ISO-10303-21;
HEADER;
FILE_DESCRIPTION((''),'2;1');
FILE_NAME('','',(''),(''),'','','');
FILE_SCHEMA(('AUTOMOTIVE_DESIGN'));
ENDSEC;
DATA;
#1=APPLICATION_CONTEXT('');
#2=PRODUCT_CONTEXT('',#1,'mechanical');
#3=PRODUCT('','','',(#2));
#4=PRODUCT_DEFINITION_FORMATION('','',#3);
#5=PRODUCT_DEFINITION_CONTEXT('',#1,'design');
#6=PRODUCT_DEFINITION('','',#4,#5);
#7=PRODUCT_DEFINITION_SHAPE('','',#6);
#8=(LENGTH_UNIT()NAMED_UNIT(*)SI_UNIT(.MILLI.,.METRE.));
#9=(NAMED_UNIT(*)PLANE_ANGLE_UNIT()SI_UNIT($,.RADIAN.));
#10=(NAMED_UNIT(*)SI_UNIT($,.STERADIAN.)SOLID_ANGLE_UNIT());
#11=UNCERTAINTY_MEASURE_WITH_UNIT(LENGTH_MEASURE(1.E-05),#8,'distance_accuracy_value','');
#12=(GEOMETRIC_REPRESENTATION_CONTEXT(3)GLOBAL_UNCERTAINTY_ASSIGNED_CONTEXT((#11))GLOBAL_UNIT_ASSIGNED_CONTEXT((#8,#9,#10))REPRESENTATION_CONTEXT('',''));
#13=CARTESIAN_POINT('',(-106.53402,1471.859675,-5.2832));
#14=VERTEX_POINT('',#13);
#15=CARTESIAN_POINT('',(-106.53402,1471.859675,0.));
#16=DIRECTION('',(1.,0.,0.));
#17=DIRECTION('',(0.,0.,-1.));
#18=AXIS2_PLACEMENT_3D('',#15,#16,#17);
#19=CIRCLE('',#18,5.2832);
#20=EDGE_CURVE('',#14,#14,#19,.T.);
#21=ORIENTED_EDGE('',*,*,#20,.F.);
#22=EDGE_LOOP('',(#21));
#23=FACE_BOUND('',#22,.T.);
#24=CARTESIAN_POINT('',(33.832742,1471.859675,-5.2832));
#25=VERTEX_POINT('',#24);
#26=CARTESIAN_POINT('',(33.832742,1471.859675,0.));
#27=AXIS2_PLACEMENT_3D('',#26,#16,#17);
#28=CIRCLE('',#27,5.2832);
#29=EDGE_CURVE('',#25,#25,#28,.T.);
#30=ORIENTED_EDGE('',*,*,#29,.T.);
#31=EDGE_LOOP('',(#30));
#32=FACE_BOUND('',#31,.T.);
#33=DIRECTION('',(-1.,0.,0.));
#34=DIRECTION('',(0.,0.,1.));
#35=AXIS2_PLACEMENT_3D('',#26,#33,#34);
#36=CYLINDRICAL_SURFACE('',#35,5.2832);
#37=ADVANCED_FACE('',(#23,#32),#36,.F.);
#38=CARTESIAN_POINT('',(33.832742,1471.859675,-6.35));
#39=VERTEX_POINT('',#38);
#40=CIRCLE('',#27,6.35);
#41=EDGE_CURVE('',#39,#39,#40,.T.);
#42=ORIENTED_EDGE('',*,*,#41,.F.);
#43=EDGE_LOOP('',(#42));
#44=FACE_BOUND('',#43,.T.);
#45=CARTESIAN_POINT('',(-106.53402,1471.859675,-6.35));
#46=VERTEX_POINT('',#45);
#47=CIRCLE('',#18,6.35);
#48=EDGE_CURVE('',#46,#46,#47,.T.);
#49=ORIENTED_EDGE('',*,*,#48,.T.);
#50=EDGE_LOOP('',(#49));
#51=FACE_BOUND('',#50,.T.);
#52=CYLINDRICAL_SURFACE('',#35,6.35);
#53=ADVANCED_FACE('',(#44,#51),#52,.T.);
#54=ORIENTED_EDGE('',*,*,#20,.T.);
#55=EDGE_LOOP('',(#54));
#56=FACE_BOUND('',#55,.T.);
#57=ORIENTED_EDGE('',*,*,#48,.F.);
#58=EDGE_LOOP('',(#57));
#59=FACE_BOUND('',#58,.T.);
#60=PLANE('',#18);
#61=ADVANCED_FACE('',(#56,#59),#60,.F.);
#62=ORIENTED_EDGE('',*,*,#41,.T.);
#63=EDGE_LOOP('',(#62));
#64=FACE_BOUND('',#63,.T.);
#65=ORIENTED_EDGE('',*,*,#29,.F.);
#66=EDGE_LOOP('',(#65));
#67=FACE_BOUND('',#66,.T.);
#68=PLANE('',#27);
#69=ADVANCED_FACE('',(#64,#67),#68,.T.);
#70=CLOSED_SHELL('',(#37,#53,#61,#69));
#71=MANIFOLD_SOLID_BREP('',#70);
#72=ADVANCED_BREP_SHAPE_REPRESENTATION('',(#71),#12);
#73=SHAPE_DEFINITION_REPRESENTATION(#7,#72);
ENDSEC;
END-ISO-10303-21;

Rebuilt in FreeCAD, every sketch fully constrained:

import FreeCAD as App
import Part
import Sketcher

V = App.Vector
Q = App.Units.Quantity

doc = App.newDocument("Part")
body = doc.addObject("PartDesign::Body", "Body")

sketch1 = body.newObject("Sketcher::SketchObject", "Sketch")
sketch1.AttachmentSupport = (doc.getObject("YZ_Plane"), [""])
sketch1.MapMode = "FlatFace"
sketch1.AttachmentOffset = App.Placement(V(0, 0, -106.53402), App.Rotation())
sketch1.addGeometry([
    Part.Circle(V(1471.859675, 0, 0), V(0, 0, 1), 6.35),
    Part.Circle(V(1471.859675, 0, 0), V(0, 0, 1), 5.2832),
], False)
sketch1.addConstraint([
    Sketcher.Constraint("Coincident", 1, 3, 0, 3),
    Sketcher.Constraint("PointOnObject", 0, 3, -1),
    Sketcher.Constraint("Diameter", 0, Q("0.5 in")),
    Sketcher.Constraint("Diameter", 1, Q("0.416 in")),
    Sketcher.Constraint("DistanceX", -1, 1, 0, 3, Q("1471.859675 mm")),
])
pad1 = body.newObject("PartDesign::Pad", "Pad")
pad1.Profile = sketch1
pad1.Length = 140.366762

doc.recompute()
